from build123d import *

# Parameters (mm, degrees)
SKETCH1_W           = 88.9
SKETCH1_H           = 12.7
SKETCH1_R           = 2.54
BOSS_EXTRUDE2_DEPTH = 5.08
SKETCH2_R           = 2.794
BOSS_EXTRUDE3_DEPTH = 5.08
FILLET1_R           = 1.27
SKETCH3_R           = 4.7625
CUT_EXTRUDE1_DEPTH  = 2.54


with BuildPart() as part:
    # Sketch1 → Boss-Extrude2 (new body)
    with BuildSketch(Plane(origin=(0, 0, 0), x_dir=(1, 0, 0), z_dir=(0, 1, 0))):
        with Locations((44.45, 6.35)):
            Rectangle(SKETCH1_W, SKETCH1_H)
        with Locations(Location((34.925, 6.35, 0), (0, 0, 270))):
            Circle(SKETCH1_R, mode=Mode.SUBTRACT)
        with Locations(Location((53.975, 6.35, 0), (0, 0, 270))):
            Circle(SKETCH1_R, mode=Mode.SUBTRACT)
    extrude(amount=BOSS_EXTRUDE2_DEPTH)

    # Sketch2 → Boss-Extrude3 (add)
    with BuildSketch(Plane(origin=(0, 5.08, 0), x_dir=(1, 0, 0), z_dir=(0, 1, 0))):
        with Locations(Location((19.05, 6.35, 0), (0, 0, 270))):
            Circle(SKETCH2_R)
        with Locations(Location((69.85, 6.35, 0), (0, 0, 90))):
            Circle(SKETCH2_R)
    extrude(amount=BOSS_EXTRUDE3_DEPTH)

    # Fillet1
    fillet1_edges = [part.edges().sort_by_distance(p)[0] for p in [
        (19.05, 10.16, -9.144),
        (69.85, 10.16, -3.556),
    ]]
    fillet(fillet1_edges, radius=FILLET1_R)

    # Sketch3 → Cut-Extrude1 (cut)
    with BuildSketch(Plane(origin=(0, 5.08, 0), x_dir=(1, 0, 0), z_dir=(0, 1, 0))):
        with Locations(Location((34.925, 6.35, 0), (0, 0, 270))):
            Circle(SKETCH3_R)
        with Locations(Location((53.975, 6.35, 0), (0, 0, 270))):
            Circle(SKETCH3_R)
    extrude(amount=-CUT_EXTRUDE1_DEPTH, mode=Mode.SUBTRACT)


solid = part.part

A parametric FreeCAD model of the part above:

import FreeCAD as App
import Part
import Sketcher

V = App.Vector
Q = App.Units.Quantity


def edges_at(feature, points):
    """Names of the edges that pass closest to the given points."""
    edges = feature.Shape.Edges
    near = lambda p: min(range(len(edges)), key=lambda i: edges[i].distToShape(Part.Vertex(*p))[0])
    return sorted({f"Edge{near(p) + 1}" for p in points})

doc = App.newDocument("Part")
params = doc.addObject("Spreadsheet::Sheet", "Params")
for row, (alias, value) in enumerate([
    ("sketch1_diameter", "0.2 in"),
    ("sketch1_width", "3.5 in"),
    ("sketch1_height", "0.5 in"),
    ("pad1_length", "0.2 in"),
    ("sketch2_diameter", "0.22 in"),
    ("pad2_length", "0.2 in"),
    ("fillet_radius", "0.05 in"),
    ("sketch3_diameter", "0.375 in"),
    ("pocket1_length", "0.1 in"),
], start=1):
    params.set(f"A{row}", alias)
    params.set(f"B{row}", "=" + value)
    params.setAlias(f"B{row}", alias)

body = doc.addObject("PartDesign::Body", "Body")

sketch1 = body.newObject("Sketcher::SketchObject", "Sketch")
sketch1.AttachmentSupport = (doc.getObject("XZ_Plane"), [""])
sketch1.MapMode = "FlatFace"
sketch1.addGeometry([
    Part.LineSegment(V(0, -12.7, 0), V(0, 0, 0)),
    Part.LineSegment(V(0, 0, 0), V(88.9, 0, 0)),
    Part.LineSegment(V(88.9, 0, 0), V(88.9, -12.7, 0)),
    Part.LineSegment(V(88.9, -12.7, 0), V(0, -12.7, 0)),
    Part.Circle(V(34.9, -6.3, 0), V(0, 0, 1), 2.5),
    Part.Circle(V(54, -6.3, 0), V(0, 0, 1), 2.5),
], False)
sketch1.addConstraint([
    Sketcher.Constraint("Coincident", 0, 2, 1, 1),
    Sketcher.Constraint("Coincident", 1, 2, 2, 1),
    Sketcher.Constraint("Coincident", 2, 2, 3, 1),
    Sketcher.Constraint("Coincident", 3, 2, 0, 1),
    Sketcher.Constraint("Vertical", 0),
    Sketcher.Constraint("Horizontal", 1),
    Sketcher.Constraint("Vertical", 2),
    Sketcher.Constraint("Horizontal", 3),
    Sketcher.Constraint("Coincident", 0, 2, -1, 1),
    Sketcher.Constraint("Equal", 4, 5),
    Sketcher.Constraint("Horizontal", 4, 3, 5, 3),
    Sketcher.Constraint("Diameter", 4, Q("0.2 in")),
    Sketcher.Constraint("DistanceX", 1, 1, 1, 2, Q("3.5 in")),
    Sketcher.Constraint("DistanceY", 0, 1, 0, 2, Q("0.5 in")),
    Sketcher.Constraint("DistanceY", 4, 3, -1, 1, Q("0.25 in")),
    Sketcher.Constraint("DistanceX", 4, 3, 5, 3, Q("0.75 in")),
    Sketcher.Constraint("DistanceX", -1, 1, 4, 3, Q("1.375 in")),
])
sketch1.setExpression("Constraints[11]", "Params.sketch1_diameter")
sketch1.setExpression("Constraints[12]", "Params.sketch1_width")
sketch1.setExpression("Constraints[13]", "Params.sketch1_height")
pad1 = body.newObject("PartDesign::Pad", "Pad")
pad1.Profile = sketch1
pad1.setExpression("Length", "Params.pad1_length")
pad1.Reversed = True

sketch2 = body.newObject("Sketcher::SketchObject", "Sketch001")
sketch2.AttachmentSupport = (doc.getObject("XZ_Plane"), [""])
sketch2.MapMode = "FlatFace"
sketch2.AttachmentOffset = App.Placement(V(0, 0, -0.2 * 25.4), App.Rotation())
sketch2.addGeometry([
    Part.Circle(V(19.1, -6.3, 0), V(0, 0, 1), 2.8),
    Part.Circle(V(69.8, -6.3, 0), V(0, 0, 1), 2.8),
], False)
sketch2.addConstraint([
    Sketcher.Constraint("Equal", 0, 1),
    Sketcher.Constraint("Horizontal", 0, 3, 1, 3),
    Sketcher.Constraint("Diameter", 0, Q("0.22 in")),
    Sketcher.Constraint("DistanceX", 0, 3, 1, 3, Q("2 in")),
    Sketcher.Constraint("DistanceX", -1, 1, 0, 3, Q("0.75 in")),
    Sketcher.Constraint("DistanceY", 0, 3, -1, 1, Q("0.25 in")),
])
sketch2.setExpression("Constraints[2]", "Params.sketch2_diameter")
pad2 = body.newObject("PartDesign::Pad", "Pad001")
pad2.Profile = sketch2
pad2.setExpression("Length", "Params.pad2_length")
pad2.Reversed = True
doc.recompute()

fillet = body.newObject("PartDesign::Fillet", "Fillet")
fillet.Base = (pad2, edges_at(pad2, [(19.05, 10.16, -9.144), (69.85, 10.16, -3.556)]))
fillet.setExpression("Radius", "Params.fillet_radius")

sketch3 = body.newObject("Sketcher::SketchObject", "Sketch002")
sketch3.AttachmentSupport = (doc.getObject("XZ_Plane"), [""])
sketch3.MapMode = "FlatFace"
sketch3.AttachmentOffset = App.Placement(V(0, 0, -0.2 * 25.4), App.Rotation())
sketch3.addGeometry([
    Part.Circle(V(34.9, -6.3, 0), V(0, 0, 1), 4.8),
    Part.Circle(V(54, -6.3, 0), V(0, 0, 1), 4.8),
], False)
sketch3.addConstraint([
    Sketcher.Constraint("Equal", 0, 1),
    Sketcher.Constraint("Horizontal", 0, 3, 1, 3),
    Sketcher.Constraint("Diameter", 0, Q("0.375 in")),
    Sketcher.Constraint("DistanceY", 0, 3, -1, 1, Q("0.25 in")),
    Sketcher.Constraint("DistanceX", 0, 3, 1, 3, Q("0.75 in")),
    Sketcher.Constraint("DistanceX", -1, 1, 0, 3, Q("1.375 in")),
])
sketch3.setExpression("Constraints[2]", "Params.sketch3_diameter")
pocket1 = body.newObject("PartDesign::Pocket", "Pocket")
pocket1.Profile = sketch3
pocket1.setExpression("Length", "Params.pocket1_length")
pocket1.Reversed = True

doc.recompute()
